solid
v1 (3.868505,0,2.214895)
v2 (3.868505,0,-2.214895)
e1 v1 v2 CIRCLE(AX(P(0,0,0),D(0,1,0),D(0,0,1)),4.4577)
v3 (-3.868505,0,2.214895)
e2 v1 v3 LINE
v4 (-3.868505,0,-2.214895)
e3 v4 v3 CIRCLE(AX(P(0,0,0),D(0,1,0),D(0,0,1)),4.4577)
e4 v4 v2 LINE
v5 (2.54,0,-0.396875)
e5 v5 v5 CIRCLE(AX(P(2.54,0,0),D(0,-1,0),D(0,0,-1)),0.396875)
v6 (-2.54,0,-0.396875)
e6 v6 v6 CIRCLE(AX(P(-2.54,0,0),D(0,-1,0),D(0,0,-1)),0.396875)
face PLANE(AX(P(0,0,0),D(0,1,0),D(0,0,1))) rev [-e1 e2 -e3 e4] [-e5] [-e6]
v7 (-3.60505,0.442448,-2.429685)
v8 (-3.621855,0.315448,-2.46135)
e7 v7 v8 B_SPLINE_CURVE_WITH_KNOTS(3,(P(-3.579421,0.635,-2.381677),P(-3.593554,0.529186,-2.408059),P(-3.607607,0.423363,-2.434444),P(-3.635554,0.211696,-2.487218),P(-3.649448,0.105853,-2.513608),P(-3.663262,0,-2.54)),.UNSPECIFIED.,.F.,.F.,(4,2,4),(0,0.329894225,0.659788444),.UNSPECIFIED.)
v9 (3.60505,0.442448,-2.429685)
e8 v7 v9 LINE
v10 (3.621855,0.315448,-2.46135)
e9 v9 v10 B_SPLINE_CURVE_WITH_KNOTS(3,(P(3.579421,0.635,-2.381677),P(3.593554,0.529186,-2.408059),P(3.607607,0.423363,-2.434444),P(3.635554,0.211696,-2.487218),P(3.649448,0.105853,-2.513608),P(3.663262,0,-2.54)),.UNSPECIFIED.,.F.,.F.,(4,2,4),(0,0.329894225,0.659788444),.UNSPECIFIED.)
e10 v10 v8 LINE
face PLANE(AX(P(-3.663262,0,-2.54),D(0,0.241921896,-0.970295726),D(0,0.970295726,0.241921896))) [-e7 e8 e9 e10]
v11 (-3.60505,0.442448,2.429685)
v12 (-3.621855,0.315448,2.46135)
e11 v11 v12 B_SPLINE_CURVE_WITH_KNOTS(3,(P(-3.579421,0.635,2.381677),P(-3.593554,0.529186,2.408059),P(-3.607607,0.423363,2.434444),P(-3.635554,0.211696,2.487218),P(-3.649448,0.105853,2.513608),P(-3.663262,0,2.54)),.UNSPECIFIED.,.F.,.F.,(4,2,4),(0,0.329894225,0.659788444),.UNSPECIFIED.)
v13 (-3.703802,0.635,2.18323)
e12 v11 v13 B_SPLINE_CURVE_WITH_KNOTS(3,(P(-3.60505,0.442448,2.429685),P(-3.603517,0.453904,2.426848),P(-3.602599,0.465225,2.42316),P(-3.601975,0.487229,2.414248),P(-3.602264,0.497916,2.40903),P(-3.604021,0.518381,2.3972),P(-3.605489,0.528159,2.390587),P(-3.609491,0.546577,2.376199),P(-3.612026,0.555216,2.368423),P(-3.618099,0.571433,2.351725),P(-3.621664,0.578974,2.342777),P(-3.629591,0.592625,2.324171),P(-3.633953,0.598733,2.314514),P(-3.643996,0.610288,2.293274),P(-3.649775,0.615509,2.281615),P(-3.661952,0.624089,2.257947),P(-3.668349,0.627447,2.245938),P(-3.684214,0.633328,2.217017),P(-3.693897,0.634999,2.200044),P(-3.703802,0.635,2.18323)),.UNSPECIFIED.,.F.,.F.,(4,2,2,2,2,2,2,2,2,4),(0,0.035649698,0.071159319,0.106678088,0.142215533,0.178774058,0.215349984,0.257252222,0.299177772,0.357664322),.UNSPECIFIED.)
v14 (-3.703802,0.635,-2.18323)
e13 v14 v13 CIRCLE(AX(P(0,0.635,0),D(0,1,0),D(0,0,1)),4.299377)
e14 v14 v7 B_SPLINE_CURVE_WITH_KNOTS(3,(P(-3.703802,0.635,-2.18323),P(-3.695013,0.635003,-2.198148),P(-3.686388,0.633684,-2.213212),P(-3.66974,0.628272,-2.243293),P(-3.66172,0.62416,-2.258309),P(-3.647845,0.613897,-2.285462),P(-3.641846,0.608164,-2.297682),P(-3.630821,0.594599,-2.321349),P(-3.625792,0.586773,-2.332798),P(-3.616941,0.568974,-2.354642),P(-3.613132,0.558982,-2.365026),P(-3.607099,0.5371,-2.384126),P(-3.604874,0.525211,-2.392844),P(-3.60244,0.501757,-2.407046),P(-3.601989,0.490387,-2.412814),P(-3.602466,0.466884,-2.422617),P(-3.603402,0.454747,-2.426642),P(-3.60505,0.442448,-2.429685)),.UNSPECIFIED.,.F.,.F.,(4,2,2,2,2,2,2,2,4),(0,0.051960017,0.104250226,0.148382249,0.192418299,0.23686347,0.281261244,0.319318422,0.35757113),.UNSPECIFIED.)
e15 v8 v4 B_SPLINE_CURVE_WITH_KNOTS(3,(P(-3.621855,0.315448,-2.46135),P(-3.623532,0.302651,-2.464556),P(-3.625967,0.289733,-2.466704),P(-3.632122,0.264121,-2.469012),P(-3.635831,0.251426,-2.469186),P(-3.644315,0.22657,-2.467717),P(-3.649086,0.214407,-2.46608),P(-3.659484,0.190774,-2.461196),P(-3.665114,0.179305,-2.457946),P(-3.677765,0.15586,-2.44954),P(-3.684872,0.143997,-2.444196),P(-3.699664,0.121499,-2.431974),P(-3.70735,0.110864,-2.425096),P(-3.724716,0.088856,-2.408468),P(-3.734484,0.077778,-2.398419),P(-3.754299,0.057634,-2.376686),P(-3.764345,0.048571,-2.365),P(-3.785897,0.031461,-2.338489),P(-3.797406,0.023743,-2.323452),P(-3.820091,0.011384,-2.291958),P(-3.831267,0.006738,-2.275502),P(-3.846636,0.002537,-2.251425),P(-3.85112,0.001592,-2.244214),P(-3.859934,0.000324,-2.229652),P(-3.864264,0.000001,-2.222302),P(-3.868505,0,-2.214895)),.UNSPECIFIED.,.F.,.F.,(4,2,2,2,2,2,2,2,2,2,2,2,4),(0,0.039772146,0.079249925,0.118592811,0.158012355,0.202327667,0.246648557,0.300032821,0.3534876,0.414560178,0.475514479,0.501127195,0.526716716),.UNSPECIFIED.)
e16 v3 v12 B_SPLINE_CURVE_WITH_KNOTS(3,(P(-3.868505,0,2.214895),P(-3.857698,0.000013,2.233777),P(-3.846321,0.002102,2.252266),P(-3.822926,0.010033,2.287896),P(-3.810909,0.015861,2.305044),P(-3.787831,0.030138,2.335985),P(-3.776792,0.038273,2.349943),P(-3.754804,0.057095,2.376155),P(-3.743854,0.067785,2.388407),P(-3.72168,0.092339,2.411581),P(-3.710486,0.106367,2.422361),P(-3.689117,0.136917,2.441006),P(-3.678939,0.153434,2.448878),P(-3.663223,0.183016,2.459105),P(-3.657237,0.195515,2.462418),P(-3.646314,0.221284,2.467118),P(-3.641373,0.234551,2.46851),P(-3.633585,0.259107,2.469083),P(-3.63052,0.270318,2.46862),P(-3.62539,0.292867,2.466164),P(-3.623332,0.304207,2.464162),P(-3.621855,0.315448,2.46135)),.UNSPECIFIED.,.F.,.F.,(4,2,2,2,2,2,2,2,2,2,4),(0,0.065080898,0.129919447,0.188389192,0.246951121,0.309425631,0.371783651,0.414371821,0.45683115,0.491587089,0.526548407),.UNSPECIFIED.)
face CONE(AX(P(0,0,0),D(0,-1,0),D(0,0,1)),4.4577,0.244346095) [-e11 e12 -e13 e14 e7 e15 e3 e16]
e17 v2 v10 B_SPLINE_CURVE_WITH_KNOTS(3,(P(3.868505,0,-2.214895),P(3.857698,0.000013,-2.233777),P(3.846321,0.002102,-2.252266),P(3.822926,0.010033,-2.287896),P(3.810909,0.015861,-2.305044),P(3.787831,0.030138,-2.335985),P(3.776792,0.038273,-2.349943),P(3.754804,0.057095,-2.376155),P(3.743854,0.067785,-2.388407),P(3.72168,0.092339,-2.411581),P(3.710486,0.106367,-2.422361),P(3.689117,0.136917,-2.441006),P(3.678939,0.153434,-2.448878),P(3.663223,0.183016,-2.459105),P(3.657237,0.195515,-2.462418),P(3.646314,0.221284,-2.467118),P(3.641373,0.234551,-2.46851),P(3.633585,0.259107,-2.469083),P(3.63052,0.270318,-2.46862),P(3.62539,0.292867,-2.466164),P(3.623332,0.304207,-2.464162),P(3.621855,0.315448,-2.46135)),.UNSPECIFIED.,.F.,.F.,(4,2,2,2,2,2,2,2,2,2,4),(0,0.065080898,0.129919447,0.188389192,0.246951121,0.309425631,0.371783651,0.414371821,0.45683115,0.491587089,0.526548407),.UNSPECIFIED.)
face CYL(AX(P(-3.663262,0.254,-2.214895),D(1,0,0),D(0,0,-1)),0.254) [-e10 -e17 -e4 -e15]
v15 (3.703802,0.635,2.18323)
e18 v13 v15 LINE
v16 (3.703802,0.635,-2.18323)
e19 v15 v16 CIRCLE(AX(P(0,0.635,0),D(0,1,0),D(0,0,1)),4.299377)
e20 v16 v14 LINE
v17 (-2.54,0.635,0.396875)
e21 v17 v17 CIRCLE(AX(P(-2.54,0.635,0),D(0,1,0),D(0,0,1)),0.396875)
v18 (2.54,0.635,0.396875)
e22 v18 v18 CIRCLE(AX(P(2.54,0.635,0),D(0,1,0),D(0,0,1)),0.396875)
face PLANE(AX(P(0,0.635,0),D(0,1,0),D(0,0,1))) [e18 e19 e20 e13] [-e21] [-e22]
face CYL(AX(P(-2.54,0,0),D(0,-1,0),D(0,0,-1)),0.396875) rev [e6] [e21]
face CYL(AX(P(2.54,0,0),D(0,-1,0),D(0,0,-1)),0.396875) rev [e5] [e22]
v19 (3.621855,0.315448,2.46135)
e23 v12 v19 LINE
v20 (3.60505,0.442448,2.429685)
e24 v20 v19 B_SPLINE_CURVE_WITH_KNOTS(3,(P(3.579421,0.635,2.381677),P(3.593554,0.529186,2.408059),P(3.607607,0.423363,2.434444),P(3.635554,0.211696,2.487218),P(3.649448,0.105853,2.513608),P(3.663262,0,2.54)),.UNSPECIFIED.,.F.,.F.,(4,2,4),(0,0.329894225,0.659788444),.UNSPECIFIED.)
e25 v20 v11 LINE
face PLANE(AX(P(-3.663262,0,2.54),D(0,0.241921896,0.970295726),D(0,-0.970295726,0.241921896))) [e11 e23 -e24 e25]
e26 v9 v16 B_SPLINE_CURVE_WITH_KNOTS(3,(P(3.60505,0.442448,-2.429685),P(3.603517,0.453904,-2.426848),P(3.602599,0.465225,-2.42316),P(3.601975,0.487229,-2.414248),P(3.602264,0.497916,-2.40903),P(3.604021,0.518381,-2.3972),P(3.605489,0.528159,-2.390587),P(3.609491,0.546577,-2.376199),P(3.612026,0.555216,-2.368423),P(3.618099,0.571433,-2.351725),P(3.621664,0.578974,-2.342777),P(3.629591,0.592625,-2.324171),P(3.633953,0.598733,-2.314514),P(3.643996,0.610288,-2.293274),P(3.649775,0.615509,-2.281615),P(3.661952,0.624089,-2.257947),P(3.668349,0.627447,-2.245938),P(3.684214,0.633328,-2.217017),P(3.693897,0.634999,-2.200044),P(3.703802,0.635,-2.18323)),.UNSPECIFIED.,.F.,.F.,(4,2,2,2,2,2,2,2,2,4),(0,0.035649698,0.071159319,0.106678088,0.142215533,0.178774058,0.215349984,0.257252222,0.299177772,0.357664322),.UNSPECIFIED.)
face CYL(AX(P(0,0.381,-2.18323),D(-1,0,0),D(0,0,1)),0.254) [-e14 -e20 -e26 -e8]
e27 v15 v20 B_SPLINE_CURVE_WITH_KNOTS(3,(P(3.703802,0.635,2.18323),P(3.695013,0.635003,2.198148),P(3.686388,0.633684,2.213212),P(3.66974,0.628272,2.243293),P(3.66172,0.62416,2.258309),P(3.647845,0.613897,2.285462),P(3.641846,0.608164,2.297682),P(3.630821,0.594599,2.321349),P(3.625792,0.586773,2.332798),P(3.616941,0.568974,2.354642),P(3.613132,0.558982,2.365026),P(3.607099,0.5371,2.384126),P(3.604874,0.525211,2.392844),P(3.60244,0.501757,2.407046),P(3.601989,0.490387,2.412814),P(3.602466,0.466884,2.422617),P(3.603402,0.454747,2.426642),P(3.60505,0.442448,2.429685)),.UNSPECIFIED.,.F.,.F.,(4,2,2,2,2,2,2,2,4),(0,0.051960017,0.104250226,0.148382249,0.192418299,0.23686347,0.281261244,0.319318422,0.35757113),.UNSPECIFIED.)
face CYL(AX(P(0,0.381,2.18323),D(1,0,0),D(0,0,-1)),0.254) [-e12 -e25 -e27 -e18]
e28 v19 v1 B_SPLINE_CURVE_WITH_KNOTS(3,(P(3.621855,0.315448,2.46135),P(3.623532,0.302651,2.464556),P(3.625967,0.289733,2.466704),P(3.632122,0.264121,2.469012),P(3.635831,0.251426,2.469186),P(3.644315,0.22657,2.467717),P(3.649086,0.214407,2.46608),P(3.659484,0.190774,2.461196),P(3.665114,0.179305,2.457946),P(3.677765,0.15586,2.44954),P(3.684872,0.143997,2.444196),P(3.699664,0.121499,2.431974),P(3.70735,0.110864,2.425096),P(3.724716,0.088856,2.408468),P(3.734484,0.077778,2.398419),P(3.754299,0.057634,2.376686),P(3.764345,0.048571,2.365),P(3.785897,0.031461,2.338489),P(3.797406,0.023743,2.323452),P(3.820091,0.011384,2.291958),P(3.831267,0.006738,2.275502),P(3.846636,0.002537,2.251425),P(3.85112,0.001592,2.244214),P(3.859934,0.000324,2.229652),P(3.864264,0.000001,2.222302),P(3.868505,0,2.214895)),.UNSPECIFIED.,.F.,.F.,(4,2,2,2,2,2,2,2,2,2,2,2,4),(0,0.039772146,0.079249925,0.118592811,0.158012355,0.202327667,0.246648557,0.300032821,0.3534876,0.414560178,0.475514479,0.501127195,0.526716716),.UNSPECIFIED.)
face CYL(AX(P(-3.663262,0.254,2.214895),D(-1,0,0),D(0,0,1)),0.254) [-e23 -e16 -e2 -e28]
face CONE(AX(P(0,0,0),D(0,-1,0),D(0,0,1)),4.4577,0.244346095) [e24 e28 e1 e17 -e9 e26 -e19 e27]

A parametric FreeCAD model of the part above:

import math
import FreeCAD as App
import Part
import Sketcher
from FreeCAD import Vector
Q = App.Units.Quantity


def edges_at(feature, points):
    """Names of the edges that pass closest to the given points."""
    edges = feature.Shape.Edges
    near = lambda p: min(range(len(edges)), key=lambda i: edges[i].distToShape(Part.Vertex(*p))[0])
    return sorted({f"Edge{near(p) + 1}" for p in points})

doc = App.newDocument("Part")
body = doc.addObject("PartDesign::Body", "Body")

# Sketch on XZ plane
sketch1 = body.newObject("Sketcher::SketchObject", "Sketch")
sketch1.AttachmentSupport = (doc.getObject("XZ_Plane"), [""])
sketch1.MapMode = "FlatFace"
sketch1.addGeometry(Part.LineSegment(Vector(-3.663262, 2.54, 0), Vector(3.663262, 2.54, 0)), False)
sketch1.addGeometry(Part.ArcOfCircle(Part.Circle(Vector(0, 0, 0), Vector(0, 0, 1), 4.4577), math.radians(-34.73632), math.radians(34.73632)), False)
sketch1.addGeometry(Part.LineSegment(Vector(3.663262, -2.54, 0), Vector(-3.663262, -2.54, 0)), False)
sketch1.addGeometry(Part.ArcOfCircle(Part.Circle(Vector(0, 0, 0), Vector(0, 0, 1), 4.4577), math.radians(145.26368), math.radians(214.73632)), False)
sketch1.addConstraint(Sketcher.Constraint("Coincident", 0, 2, 1, 2))
sketch1.addConstraint(Sketcher.Constraint("Coincident", 1, 1, 2, 1))
sketch1.addConstraint(Sketcher.Constraint("Coincident", 2, 2, 3, 2))
sketch1.addConstraint(Sketcher.Constraint("Coincident", 3, 1, 0, 1))
sketch1.addConstraint(Sketcher.Constraint("Horizontal", 0))
sketch1.addConstraint(Sketcher.Constraint("Horizontal", 2))
sketch1.addConstraint(Sketcher.Constraint("Coincident", 1, 3, -1, 1))
sketch1.addConstraint(Sketcher.Constraint("Coincident", 3, 3, -1, 1))
sketch1.addConstraint(Sketcher.Constraint("Equal", 1, 3))
sketch1.addConstraint(Sketcher.Constraint("Vertical", 0, 2, 1, 1))
sketch1.addConstraint(Sketcher.Constraint("DistanceY", -1, 1, 0, 2, Q("0.1 in")))
sketch1.addConstraint(Sketcher.Constraint("Radius", 1, Q("0.1755 in")))
pad1 = body.newObject("PartDesign::Pad", "Pad")
pad1.Profile = sketch1
pad1.Length = Q("0.025 in")
pad1.Reversed = True
pad1.TaperAngle = -14

# Sketch on XZ plane
sketch2 = body.newObject("Sketcher::SketchObject", "Sketch001")
sketch2.AttachmentSupport = (doc.getObject("XZ_Plane"), [""])
sketch2.MapMode = "FlatFace"
sketch2.addGeometry(Part.Circle(Vector(-2.54, 0, 0), Vector(0, 0, 1), 0.396875), False)
sketch2.addGeometry(Part.Circle(Vector(2.54, 0, 0), Vector(0, 0, 1), 0.396875), False)
sketch2.addConstraint(Sketcher.Constraint("Equal", 0, 1))
sketch2.addConstraint(Sketcher.Constraint("Symmetric", 0, 3, 1, 3, -1, 1))
sketch2.addConstraint(Sketcher.Constraint("PointOnObject", 0, 3, -1))
sketch2.addConstraint(Sketcher.Constraint("Diameter", 0, Q("0.03125 in")))
sketch2.addConstraint(Sketcher.Constraint("DistanceX", 0, 3, -1, 1, Q("0.1 in")))
doc.recompute()
hole = body.newObject("PartDesign::Hole", "Hole")
hole.Profile = sketch2
hole.ThreadType = "None"
hole.Diameter = Q("0.03125 in")
hole.DepthType = "Dimension"
hole.Depth = Q("0.5 in")
hole.DrillPoint = "Angled"
hole.DrillPointAngle = 118
doc.recompute()

fillet = body.newObject("PartDesign::Fillet", "Fillet")
fillet.Base = (hole, edges_at(hole, [
    (0, 0, -2.54),
    (0, 0.635, -2.382),
    (0, 0, 2.54),
    (0, 0.635, 2.382),
]))
fillet.Radius = Q("0.01 in")

doc.recompute()
